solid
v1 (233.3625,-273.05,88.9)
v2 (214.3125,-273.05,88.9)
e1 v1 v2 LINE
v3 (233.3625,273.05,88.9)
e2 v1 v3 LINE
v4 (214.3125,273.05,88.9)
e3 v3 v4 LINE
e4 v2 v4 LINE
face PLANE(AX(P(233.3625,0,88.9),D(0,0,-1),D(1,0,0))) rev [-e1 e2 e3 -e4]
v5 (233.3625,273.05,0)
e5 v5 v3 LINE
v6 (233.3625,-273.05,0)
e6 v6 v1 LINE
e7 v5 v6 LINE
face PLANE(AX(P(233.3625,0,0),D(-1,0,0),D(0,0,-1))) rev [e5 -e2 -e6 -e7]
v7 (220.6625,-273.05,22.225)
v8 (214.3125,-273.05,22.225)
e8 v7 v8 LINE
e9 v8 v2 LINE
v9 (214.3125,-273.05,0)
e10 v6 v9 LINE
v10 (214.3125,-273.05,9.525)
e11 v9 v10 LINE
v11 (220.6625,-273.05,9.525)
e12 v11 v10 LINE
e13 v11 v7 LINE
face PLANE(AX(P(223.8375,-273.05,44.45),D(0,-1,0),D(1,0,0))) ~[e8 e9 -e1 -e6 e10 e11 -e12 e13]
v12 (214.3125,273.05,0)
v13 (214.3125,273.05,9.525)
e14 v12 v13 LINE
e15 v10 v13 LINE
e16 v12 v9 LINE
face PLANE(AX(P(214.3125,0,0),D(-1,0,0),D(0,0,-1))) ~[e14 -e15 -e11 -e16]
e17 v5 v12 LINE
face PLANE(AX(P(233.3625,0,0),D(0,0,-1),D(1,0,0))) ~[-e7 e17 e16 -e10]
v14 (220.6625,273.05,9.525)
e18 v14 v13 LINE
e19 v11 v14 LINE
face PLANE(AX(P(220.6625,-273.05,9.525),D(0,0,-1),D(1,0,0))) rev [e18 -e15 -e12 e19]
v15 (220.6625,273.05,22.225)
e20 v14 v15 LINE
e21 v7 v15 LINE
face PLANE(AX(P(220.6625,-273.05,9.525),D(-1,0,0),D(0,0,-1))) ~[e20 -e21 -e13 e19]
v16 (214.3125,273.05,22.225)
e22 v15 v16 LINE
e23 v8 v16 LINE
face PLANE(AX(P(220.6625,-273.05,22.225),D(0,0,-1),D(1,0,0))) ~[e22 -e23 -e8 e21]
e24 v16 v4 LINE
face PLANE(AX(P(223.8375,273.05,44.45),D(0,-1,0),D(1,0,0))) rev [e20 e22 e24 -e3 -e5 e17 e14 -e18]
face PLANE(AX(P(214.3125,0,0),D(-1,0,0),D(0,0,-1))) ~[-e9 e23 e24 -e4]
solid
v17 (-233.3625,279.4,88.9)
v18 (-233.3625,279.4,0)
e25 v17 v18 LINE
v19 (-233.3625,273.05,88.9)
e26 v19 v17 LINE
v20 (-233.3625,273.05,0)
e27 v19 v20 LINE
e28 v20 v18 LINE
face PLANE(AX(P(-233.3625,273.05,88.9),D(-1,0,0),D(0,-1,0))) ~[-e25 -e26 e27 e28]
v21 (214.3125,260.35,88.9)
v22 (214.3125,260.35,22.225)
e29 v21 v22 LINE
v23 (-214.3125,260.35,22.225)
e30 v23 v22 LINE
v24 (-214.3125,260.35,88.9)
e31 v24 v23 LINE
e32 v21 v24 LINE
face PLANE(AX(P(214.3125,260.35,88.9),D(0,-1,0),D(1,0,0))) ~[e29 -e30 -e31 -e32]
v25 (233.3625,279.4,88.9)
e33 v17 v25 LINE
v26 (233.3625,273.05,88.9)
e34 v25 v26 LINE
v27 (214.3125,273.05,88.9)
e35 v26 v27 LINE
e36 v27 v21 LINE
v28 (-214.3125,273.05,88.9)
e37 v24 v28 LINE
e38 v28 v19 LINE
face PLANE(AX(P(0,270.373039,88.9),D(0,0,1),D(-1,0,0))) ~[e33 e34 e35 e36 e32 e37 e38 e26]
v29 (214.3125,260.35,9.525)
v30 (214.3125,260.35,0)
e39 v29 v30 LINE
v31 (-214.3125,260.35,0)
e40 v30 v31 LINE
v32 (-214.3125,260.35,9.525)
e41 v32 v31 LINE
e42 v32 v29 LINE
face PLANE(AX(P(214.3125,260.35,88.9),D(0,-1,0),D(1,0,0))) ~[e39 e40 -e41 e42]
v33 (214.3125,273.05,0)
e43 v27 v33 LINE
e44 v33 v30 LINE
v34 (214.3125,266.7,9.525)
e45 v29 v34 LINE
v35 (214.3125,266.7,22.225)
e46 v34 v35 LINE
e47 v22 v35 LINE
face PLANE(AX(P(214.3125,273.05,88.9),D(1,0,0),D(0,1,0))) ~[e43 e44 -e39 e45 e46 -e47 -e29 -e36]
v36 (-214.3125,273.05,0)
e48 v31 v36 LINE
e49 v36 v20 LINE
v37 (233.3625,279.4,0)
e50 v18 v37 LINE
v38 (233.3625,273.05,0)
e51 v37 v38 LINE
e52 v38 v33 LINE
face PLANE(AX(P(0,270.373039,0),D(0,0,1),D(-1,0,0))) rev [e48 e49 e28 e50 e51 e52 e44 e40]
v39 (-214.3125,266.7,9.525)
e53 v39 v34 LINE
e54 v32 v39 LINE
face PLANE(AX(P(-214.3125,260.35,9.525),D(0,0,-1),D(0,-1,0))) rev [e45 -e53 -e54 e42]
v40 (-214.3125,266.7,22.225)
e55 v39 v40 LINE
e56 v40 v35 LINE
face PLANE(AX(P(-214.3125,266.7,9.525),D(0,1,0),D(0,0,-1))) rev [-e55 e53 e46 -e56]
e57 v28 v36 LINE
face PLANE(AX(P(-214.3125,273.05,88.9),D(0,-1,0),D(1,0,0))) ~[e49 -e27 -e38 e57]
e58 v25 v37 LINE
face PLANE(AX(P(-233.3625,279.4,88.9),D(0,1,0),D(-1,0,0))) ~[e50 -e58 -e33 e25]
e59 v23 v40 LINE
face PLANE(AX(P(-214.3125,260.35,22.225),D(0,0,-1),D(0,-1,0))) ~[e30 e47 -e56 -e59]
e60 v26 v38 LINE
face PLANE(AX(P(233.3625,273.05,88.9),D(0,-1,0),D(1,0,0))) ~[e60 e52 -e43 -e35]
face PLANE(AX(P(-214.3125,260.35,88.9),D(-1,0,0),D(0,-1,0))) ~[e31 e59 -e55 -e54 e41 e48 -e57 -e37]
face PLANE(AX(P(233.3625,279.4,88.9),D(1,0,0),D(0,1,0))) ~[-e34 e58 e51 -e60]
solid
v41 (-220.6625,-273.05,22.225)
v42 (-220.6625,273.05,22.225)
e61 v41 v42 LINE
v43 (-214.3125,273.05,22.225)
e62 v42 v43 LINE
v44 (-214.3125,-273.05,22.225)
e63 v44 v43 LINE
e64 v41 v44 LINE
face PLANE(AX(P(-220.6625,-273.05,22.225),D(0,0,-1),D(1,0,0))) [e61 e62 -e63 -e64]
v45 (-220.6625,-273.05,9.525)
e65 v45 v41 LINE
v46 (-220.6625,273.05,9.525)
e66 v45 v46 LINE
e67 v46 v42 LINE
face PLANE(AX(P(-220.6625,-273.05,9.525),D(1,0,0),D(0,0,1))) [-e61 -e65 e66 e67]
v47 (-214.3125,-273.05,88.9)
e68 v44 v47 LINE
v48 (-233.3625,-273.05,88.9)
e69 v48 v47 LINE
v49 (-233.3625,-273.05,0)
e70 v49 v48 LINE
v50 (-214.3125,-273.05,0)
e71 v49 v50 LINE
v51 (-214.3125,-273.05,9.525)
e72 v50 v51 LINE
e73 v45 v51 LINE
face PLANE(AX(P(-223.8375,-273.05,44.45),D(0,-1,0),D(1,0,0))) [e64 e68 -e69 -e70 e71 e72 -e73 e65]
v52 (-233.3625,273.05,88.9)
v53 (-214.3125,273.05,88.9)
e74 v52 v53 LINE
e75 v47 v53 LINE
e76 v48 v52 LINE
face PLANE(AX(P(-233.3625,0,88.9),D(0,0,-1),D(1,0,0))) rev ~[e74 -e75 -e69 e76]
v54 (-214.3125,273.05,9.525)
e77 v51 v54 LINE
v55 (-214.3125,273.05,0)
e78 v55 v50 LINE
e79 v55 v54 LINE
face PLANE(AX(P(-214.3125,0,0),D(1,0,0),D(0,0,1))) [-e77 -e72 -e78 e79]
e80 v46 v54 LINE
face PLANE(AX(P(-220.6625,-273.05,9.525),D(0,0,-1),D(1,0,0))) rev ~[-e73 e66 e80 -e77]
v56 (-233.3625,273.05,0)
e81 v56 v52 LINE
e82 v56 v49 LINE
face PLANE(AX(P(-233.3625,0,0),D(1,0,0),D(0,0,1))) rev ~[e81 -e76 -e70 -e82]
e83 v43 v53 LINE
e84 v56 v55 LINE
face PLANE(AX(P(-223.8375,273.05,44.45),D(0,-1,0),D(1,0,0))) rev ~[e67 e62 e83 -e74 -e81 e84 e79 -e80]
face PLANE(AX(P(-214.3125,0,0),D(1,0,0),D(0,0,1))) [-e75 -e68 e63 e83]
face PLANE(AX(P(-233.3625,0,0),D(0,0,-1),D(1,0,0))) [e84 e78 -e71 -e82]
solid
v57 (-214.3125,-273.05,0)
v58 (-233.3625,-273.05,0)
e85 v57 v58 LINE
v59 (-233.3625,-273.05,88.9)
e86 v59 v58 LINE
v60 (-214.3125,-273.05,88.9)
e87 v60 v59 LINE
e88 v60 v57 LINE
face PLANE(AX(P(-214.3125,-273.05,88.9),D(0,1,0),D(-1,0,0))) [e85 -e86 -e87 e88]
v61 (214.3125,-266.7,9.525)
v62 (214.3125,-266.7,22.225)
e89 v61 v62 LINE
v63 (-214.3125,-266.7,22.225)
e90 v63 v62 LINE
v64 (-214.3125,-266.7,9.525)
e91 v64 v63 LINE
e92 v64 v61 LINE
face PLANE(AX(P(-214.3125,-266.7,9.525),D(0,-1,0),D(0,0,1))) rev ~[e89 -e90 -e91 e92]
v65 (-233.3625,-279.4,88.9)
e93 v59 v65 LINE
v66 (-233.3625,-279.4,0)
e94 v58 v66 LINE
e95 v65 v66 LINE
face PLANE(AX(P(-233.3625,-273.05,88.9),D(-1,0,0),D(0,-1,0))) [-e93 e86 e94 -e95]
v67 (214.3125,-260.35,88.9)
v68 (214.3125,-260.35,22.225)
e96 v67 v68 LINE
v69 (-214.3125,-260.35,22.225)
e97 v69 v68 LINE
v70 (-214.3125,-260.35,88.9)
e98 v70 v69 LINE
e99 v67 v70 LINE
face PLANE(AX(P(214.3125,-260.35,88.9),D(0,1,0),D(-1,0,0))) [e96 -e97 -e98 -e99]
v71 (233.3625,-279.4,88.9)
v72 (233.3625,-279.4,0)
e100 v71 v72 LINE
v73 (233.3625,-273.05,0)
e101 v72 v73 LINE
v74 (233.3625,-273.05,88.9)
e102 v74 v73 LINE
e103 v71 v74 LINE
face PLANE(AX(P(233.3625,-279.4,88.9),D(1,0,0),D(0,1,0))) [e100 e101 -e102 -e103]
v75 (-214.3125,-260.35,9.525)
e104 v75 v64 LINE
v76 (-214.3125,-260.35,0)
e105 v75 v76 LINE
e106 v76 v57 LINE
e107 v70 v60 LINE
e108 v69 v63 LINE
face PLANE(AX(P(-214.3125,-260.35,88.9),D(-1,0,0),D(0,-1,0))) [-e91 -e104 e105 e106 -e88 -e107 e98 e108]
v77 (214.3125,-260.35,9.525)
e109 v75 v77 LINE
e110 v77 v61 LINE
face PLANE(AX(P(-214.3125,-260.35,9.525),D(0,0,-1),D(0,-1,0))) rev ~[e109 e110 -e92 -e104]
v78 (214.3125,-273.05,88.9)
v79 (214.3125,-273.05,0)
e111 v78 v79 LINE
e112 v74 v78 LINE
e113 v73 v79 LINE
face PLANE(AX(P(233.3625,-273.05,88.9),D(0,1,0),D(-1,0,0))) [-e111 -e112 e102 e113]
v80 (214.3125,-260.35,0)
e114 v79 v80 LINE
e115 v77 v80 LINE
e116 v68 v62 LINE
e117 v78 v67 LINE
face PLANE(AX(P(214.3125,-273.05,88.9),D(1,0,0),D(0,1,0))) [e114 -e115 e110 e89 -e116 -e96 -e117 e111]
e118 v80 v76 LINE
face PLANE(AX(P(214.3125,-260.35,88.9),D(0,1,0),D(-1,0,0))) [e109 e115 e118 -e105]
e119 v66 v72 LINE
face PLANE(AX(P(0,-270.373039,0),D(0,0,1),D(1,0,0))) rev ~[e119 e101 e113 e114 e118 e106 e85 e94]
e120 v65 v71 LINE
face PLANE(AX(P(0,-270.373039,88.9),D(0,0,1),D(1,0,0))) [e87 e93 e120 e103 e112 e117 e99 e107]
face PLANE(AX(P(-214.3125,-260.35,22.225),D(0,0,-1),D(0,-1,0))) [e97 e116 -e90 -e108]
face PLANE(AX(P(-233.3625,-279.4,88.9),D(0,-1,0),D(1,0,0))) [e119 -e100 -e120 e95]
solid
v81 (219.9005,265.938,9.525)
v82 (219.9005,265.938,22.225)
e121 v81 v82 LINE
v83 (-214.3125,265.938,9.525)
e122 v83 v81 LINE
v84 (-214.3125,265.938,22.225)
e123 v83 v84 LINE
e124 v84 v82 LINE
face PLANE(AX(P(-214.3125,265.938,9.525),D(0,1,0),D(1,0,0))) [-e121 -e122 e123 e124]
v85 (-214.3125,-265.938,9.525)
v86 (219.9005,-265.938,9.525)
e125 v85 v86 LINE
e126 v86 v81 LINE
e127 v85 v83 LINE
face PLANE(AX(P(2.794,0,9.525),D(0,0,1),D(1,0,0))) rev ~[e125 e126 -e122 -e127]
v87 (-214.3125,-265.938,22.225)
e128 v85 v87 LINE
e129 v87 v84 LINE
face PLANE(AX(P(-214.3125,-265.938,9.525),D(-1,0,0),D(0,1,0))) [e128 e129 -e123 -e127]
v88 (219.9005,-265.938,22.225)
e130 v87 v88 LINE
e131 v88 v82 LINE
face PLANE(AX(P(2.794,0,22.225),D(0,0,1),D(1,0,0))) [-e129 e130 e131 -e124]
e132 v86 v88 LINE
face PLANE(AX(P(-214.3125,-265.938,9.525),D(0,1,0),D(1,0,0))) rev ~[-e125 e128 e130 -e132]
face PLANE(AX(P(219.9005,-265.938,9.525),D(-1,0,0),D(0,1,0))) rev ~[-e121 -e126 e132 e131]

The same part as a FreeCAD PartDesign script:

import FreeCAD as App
import Part
import Sketcher

V = App.Vector
Q = App.Units.Quantity

doc = App.newDocument("Part")
body = doc.addObject("PartDesign::Body", "Body")

# Sketch on XZ plane
sketch1 = body.newObject("Sketcher::SketchObject", "Sketch")
sketch1.AttachmentSupport = (doc.getObject("XZ_Plane"), [""])
sketch1.MapMode = "FlatFace"
sketch1.addGeometry(Part.LineSegment(V(-233, 89, 0), V(-233, 0, 0)), False)
sketch1.addGeometry(Part.LineSegment(V(-233, 0, 0), V(-214, 0, 0)), False)
sketch1.addGeometry(Part.LineSegment(V(-214, 0, 0), V(-214, 89, 0)), False)
sketch1.addGeometry(Part.LineSegment(V(-214, 89, 0), V(-233, 89, 0)), False)
sketch1.addConstraint(Sketcher.Constraint("Coincident", 0, 2, 1, 1))
sketch1.addConstraint(Sketcher.Constraint("Coincident", 1, 2, 2, 1))
sketch1.addConstraint(Sketcher.Constraint("Coincident", 2, 2, 3, 1))
sketch1.addConstraint(Sketcher.Constraint("Coincident", 3, 2, 0, 1))
sketch1.addConstraint(Sketcher.Constraint("Vertical", 0))
sketch1.addConstraint(Sketcher.Constraint("Horizontal", 1))
sketch1.addConstraint(Sketcher.Constraint("Vertical", 2))
sketch1.addConstraint(Sketcher.Constraint("Horizontal", 3))
sketch1.addConstraint(Sketcher.Constraint("PointOnObject", 0, 2, -1))
sketch1.addConstraint(Sketcher.Constraint("DistanceY", 0, 2, 0, 1, Q("3.5 in")))
sketch1.addConstraint(Sketcher.Constraint("DistanceX", 1, 1, 1, 2, Q("0.75 in")))
sketch1.addConstraint(Sketcher.Constraint("DistanceX", 0, 2, -1, 1, Q("9.1875 in")))
pad1 = body.newObject("PartDesign::Pad", "Pad")
pad1.Profile = sketch1
pad1.Length = Q("21.5 in")
pad1.Midplane = True

# Sketch on XZ plane
sketch2 = body.newObject("Sketcher::SketchObject", "Sketch001")
sketch2.AttachmentSupport = (doc.getObject("XZ_Plane"), [""])
sketch2.MapMode = "FlatFace"
sketch2.AttachmentOffset = App.Placement(V(0, 0, 10.75 * 25.4), App.Rotation())
sketch2.addGeometry(Part.LineSegment(V(-221, 22, 0), V(-221, 10, 0)), False)
sketch2.addGeometry(Part.LineSegment(V(-221, 10, 0), V(-214, 10, 0)), False)
sketch2.addGeometry(Part.LineSegment(V(-214, 10, 0), V(-214, 22, 0)), False)
sketch2.addGeometry(Part.LineSegment(V(-214, 22, 0), V(-221, 22, 0)), False)
sketch2.addConstraint(Sketcher.Constraint("Coincident", 0, 2, 1, 1))
sketch2.addConstraint(Sketcher.Constraint("Coincident", 1, 2, 2, 1))
sketch2.addConstraint(Sketcher.Constraint("Coincident", 2, 2, 3, 1))
sketch2.addConstraint(Sketcher.Constraint("Coincident", 3, 2, 0, 1))
sketch2.addConstraint(Sketcher.Constraint("Vertical", 0))
sketch2.addConstraint(Sketcher.Constraint("Horizontal", 1))
sketch2.addConstraint(Sketcher.Constraint("Vertical", 2))
sketch2.addConstraint(Sketcher.Constraint("Horizontal", 3))
sketch2.addConstraint(Sketcher.Constraint("DistanceY", 0, 2, 0, 1, Q("0.5 in")))
sketch2.addConstraint(Sketcher.Constraint("DistanceX", 1, 1, 1, 2, Q("0.25 in")))
sketch2.addConstraint(Sketcher.Constraint("DistanceX", 0, 2, -1, 1, Q("8.6875 in")))
sketch2.addConstraint(Sketcher.Constraint("DistanceY", -1, 1, 0, 2, Q("0.375 in")))
pocket1 = body.newObject("PartDesign::Pocket", "Pocket")
pocket1.Profile = sketch2
pocket1.Type = "ThroughAll"
body2 = doc.addObject("PartDesign::Body", "Body001")
doc.recompute()

mirroring = doc.addObject("Part::Mirroring", "Mirroring")
mirroring.Source = body
mirroring.Base = V(0, 0, 0)
mirroring.Normal = V(1, 0, 0)
body2.BaseFeature = mirroring
doc.recompute()
body3 = doc.addObject("PartDesign::Body", "Body002")

# Sketch on XY plane
sketch3 = body3.newObject("Sketcher::SketchObject", "Sketch002")
sketch3.AttachmentSupport = (doc.getObject("XY_Plane002"), [""])
sketch3.MapMode = "FlatFace"
sketch3.AttachmentOffset = App.Placement(V(0, 0, 3.5 * 25.4), App.Rotation())
sketch3.addGeometry(Part.LineSegment(V(214, -260, 0), V(-214, -260, 0)), False)
sketch3.addGeometry(Part.LineSegment(V(-214, -260, 0), V(-214, -273, 0)), False)
sketch3.addGeometry(Part.LineSegment(V(-214, -273, 0), V(-233, -273, 0)), False)
sketch3.addGeometry(Part.LineSegment(V(-233, -273, 0), V(-233, -279, 0)), False)
sketch3.addGeometry(Part.LineSegment(V(-233, -279, 0), V(233, -279, 0)), False)
sketch3.addGeometry(Part.LineSegment(V(233, -279, 0), V(233, -273, 0)), False)
sketch3.addGeometry(Part.LineSegment(V(233, -273, 0), V(214, -273, 0)), False)
sketch3.addGeometry(Part.LineSegment(V(214, -273, 0), V(214, -260, 0)), False)
sketch3.addConstraint(Sketcher.Constraint("Coincident", 0, 2, 1, 1))
sketch3.addConstraint(Sketcher.Constraint("Coincident", 1, 2, 2, 1))
sketch3.addConstraint(Sketcher.Constraint("Coincident", 2, 2, 3, 1))
sketch3.addConstraint(Sketcher.Constraint("Coincident", 3, 2, 4, 1))
sketch3.addConstraint(Sketcher.Constraint("Coincident", 4, 2, 5, 1))
sketch3.addConstraint(Sketcher.Constraint("Coincident", 5, 2, 6, 1))
sketch3.addConstraint(Sketcher.Constraint("Coincident", 6, 2, 7, 1))
sketch3.addConstraint(Sketcher.Constraint("Coincident", 7, 2, 0, 1))
sketch3.addConstraint(Sketcher.Constraint("Horizontal", 0))
sketch3.addConstraint(Sketcher.Constraint("Vertical", 1))
sketch3.addConstraint(Sketcher.Constraint("Horizontal", 2))
sketch3.addConstraint(Sketcher.Constraint("Vertical", 3))
sketch3.addConstraint(Sketcher.Constraint("Horizontal", 4))
sketch3.addConstraint(Sketcher.Constraint("Vertical", 5))
sketch3.addConstraint(Sketcher.Constraint("Horizontal", 6))
sketch3.addConstraint(Sketcher.Constraint("Vertical", 7))
sketch3.addConstraint(Sketcher.Constraint("Symmetric", 2, 2, 5, 2, -2))
sketch3.addConstraint(Sketcher.Constraint("Equal", 2, 6))
sketch3.addConstraint(Sketcher.Constraint("DistanceY", 1, 2, 1, 1, Q("0.5 in")))
sketch3.addConstraint(Sketcher.Constraint("DistanceY", 3, 2, -1, 1, Q("11 in")))
sketch3.addConstraint(Sketcher.Constraint("DistanceX", 2, 2, 2, 1, Q("0.75 in")))
sketch3.addConstraint(Sketcher.Constraint("DistanceY", 3, 2, 3, 1, Q("0.25 in")))
sketch3.addConstraint(Sketcher.Constraint("DistanceX", 0, 2, 0, 1, Q("16.875 in")))
pad2 = body3.newObject("PartDesign::Pad", "Pad001")
pad2.Profile = sketch3
pad2.Length = Q("3.5 in")
pad2.Reversed = True

# Sketch on YZ plane
sketch4 = body3.newObject("Sketcher::SketchObject", "Sketch003")
sketch4.AttachmentSupport = (doc.getObject("YZ_Plane002"), [""])
sketch4.MapMode = "FlatFace"
sketch4.AttachmentOffset = App.Placement(V(0, 0, -8.4375 * 25.4), App.Rotation())
sketch4.addGeometry(Part.LineSegment(V(-260, 22, 0), V(-260, 10, 0)), False)
sketch4.addGeometry(Part.LineSegment(V(-260, 10, 0), V(-267, 10, 0)), False)
sketch4.addGeometry(Part.LineSegment(V(-267, 10, 0), V(-267, 22, 0)), False)
sketch4.addGeometry(Part.LineSegment(V(-267, 22, 0), V(-260, 22, 0)), False)
sketch4.addConstraint(Sketcher.Constraint("Coincident", 0, 2, 1, 1))
sketch4.addConstraint(Sketcher.Constraint("Coincident", 1, 2, 2, 1))
sketch4.addConstraint(Sketcher.Constraint("Coincident", 2, 2, 3, 1))
sketch4.addConstraint(Sketcher.Constraint("Coincident", 3, 2, 0, 1))
sketch4.addConstraint(Sketcher.Constraint("Vertical", 0))
sketch4.addConstraint(Sketcher.Constraint("Horizontal", 1))
sketch4.addConstraint(Sketcher.Constraint("Vertical", 2))
sketch4.addConstraint(Sketcher.Constraint("Horizontal", 3))
sketch4.addConstraint(Sketcher.Constraint("DistanceY", 0, 2, 0, 1, Q("0.5 in")))
sketch4.addConstraint(Sketcher.Constraint("DistanceX", 1, 2, 1, 1, Q("0.25 in")))
sketch4.addConstraint(Sketcher.Constraint("DistanceX", 1, 2, -1, 1, Q("10.5 in")))
sketch4.addConstraint(Sketcher.Constraint("DistanceY", -1, 1, 0, 2, Q("0.375 in")))
pocket2 = body3.newObject("PartDesign::Pocket", "Pocket001")
pocket2.Profile = sketch4
pocket2.Type = "ThroughAll"
pocket2.Reversed = True
body4 = doc.addObject("PartDesign::Body", "Body003")
doc.recompute()

mirroring2 = doc.addObject("Part::Mirroring", "Mirroring001")
mirroring2.Source = body3
mirroring2.Base = V(0, 0, 0)
mirroring2.Normal = V(0, -1, 0)
body4.BaseFeature = mirroring2
doc.recompute()
body5 = doc.addObject("PartDesign::Body", "Body004")

# Sketch on XY plane
sketch5 = body5.newObject("Sketcher::SketchObject", "Sketch004")
sketch5.AttachmentSupport = (doc.getObject("XY_Plane004"), [""])
sketch5.MapMode = "FlatFace"
sketch5.AttachmentOffset = App.Placement(V(0, 0, 0.375 * 25.4), App.Rotation())
sketch5.addGeometry(Part.LineSegment(V(-214, 266, 0), V(-214, -266, 0)), False)
sketch5.addGeometry(Part.LineSegment(V(-214, -266, 0), V(220, -266, 0)), False)
sketch5.addGeometry(Part.LineSegment(V(220, -266, 0), V(220, 266, 0)), False)
sketch5.addGeometry(Part.LineSegment(V(220, 266, 0), V(-214, 266, 0)), False)
sketch5.addConstraint(Sketcher.Constraint("Coincident", 0, 2, 1, 1))
sketch5.addConstraint(Sketcher.Constraint("Coincident", 1, 2, 2, 1))
sketch5.addConstraint(Sketcher.Constraint("Coincident", 2, 2, 3, 1))
sketch5.addConstraint(Sketcher.Constraint("Coincident", 3, 2, 0, 1))
sketch5.addConstraint(Sketcher.Constraint("Vertical", 0))
sketch5.addConstraint(Sketcher.Constraint("Horizontal", 1))
sketch5.addConstraint(Sketcher.Constraint("Vertical", 2))
sketch5.addConstraint(Sketcher.Constraint("Horizontal", 3))
sketch5.addConstraint(Sketcher.Constraint("DistanceY", 0, 2, 0, 1, Q("20.94 in")))
sketch5.addConstraint(Sketcher.Constraint("DistanceX", 1, 1, 1, 2, Q("17.095 in")))
sketch5.addConstraint(Sketcher.Constraint("DistanceY", 0, 2, -1, 1, Q("10.47 in")))
sketch5.addConstraint(Sketcher.Constraint("DistanceX", 0, 2, -1, 1, Q("8.4375 in")))
pad3 = body5.newObject("PartDesign::Pad", "Pad002")
pad3.Profile = sketch5
pad3.Length = Q("0.5 in")
mirroring.Visibility = False
mirroring2.Visibility = False

doc.recompute()
